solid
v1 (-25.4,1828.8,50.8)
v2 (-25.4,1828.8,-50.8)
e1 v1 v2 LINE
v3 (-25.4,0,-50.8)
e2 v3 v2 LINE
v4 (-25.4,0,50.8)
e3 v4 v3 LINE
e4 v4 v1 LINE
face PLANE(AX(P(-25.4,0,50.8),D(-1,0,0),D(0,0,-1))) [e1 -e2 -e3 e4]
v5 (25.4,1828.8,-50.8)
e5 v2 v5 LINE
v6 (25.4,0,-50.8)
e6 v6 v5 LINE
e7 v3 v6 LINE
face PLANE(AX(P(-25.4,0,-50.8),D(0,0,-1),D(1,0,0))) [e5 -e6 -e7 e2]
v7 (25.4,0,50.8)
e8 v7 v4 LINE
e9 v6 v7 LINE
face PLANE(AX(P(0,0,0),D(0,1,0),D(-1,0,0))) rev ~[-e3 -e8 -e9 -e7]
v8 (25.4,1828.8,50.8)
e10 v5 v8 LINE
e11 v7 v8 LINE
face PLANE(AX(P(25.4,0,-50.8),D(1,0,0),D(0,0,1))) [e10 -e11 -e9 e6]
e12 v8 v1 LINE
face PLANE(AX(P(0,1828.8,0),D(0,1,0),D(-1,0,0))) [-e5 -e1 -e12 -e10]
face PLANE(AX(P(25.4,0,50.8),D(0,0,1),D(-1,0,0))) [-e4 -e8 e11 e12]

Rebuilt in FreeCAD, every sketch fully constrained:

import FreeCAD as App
import Part
import Sketcher
from FreeCAD import Vector
Q = App.Units.Quantity


def add_polygon(sketch, points):
    """Adds a closed chain of lines whose ends are joined by coincident constraints."""
    first, n = sketch.GeometryCount, len(points)
    for a, b in zip(points, points[1:] + points[:1]):
        sketch.addGeometry(Part.LineSegment(App.Vector(*a, 0), App.Vector(*b, 0)), False)
    for i in range(n):
        sketch.addConstraint(Sketcher.Constraint("Coincident", first + i, 2, first + (i + 1) % n, 1))

doc = App.newDocument("Part")
body = doc.addObject("PartDesign::Body", "Body")

# Sketch on XZ plane
sketch1 = body.newObject("Sketcher::SketchObject", "Sketch")
sketch1.AttachmentSupport = (doc.getObject("XZ_Plane"), [""])
sketch1.MapMode = "FlatFace"
add_polygon(sketch1, [(-25.4, 50.8), (25.4, 50.8), (25.4, -50.8), (-25.4, -50.8)])  # lines 0-3
sketch1.addConstraint([
    Sketcher.Constraint("Horizontal", 0),
    Sketcher.Constraint("Vertical", 1),
    Sketcher.Constraint("Horizontal", 2),
    Sketcher.Constraint("Vertical", 3),
    Sketcher.Constraint("Symmetric", 0, 2, 2, 2, -1, 1),
    Sketcher.Constraint("DistanceX", 0, 1, 0, 2, Q("2 in")),
    Sketcher.Constraint("DistanceY", 1, 2, 1, 1, Q("4 in")),
])
pad1 = body.newObject("PartDesign::Pad", "Pad")
pad1.Profile = sketch1
pad1.Length = Q("72 in")
pad1.Reversed = True

doc.recompute()
